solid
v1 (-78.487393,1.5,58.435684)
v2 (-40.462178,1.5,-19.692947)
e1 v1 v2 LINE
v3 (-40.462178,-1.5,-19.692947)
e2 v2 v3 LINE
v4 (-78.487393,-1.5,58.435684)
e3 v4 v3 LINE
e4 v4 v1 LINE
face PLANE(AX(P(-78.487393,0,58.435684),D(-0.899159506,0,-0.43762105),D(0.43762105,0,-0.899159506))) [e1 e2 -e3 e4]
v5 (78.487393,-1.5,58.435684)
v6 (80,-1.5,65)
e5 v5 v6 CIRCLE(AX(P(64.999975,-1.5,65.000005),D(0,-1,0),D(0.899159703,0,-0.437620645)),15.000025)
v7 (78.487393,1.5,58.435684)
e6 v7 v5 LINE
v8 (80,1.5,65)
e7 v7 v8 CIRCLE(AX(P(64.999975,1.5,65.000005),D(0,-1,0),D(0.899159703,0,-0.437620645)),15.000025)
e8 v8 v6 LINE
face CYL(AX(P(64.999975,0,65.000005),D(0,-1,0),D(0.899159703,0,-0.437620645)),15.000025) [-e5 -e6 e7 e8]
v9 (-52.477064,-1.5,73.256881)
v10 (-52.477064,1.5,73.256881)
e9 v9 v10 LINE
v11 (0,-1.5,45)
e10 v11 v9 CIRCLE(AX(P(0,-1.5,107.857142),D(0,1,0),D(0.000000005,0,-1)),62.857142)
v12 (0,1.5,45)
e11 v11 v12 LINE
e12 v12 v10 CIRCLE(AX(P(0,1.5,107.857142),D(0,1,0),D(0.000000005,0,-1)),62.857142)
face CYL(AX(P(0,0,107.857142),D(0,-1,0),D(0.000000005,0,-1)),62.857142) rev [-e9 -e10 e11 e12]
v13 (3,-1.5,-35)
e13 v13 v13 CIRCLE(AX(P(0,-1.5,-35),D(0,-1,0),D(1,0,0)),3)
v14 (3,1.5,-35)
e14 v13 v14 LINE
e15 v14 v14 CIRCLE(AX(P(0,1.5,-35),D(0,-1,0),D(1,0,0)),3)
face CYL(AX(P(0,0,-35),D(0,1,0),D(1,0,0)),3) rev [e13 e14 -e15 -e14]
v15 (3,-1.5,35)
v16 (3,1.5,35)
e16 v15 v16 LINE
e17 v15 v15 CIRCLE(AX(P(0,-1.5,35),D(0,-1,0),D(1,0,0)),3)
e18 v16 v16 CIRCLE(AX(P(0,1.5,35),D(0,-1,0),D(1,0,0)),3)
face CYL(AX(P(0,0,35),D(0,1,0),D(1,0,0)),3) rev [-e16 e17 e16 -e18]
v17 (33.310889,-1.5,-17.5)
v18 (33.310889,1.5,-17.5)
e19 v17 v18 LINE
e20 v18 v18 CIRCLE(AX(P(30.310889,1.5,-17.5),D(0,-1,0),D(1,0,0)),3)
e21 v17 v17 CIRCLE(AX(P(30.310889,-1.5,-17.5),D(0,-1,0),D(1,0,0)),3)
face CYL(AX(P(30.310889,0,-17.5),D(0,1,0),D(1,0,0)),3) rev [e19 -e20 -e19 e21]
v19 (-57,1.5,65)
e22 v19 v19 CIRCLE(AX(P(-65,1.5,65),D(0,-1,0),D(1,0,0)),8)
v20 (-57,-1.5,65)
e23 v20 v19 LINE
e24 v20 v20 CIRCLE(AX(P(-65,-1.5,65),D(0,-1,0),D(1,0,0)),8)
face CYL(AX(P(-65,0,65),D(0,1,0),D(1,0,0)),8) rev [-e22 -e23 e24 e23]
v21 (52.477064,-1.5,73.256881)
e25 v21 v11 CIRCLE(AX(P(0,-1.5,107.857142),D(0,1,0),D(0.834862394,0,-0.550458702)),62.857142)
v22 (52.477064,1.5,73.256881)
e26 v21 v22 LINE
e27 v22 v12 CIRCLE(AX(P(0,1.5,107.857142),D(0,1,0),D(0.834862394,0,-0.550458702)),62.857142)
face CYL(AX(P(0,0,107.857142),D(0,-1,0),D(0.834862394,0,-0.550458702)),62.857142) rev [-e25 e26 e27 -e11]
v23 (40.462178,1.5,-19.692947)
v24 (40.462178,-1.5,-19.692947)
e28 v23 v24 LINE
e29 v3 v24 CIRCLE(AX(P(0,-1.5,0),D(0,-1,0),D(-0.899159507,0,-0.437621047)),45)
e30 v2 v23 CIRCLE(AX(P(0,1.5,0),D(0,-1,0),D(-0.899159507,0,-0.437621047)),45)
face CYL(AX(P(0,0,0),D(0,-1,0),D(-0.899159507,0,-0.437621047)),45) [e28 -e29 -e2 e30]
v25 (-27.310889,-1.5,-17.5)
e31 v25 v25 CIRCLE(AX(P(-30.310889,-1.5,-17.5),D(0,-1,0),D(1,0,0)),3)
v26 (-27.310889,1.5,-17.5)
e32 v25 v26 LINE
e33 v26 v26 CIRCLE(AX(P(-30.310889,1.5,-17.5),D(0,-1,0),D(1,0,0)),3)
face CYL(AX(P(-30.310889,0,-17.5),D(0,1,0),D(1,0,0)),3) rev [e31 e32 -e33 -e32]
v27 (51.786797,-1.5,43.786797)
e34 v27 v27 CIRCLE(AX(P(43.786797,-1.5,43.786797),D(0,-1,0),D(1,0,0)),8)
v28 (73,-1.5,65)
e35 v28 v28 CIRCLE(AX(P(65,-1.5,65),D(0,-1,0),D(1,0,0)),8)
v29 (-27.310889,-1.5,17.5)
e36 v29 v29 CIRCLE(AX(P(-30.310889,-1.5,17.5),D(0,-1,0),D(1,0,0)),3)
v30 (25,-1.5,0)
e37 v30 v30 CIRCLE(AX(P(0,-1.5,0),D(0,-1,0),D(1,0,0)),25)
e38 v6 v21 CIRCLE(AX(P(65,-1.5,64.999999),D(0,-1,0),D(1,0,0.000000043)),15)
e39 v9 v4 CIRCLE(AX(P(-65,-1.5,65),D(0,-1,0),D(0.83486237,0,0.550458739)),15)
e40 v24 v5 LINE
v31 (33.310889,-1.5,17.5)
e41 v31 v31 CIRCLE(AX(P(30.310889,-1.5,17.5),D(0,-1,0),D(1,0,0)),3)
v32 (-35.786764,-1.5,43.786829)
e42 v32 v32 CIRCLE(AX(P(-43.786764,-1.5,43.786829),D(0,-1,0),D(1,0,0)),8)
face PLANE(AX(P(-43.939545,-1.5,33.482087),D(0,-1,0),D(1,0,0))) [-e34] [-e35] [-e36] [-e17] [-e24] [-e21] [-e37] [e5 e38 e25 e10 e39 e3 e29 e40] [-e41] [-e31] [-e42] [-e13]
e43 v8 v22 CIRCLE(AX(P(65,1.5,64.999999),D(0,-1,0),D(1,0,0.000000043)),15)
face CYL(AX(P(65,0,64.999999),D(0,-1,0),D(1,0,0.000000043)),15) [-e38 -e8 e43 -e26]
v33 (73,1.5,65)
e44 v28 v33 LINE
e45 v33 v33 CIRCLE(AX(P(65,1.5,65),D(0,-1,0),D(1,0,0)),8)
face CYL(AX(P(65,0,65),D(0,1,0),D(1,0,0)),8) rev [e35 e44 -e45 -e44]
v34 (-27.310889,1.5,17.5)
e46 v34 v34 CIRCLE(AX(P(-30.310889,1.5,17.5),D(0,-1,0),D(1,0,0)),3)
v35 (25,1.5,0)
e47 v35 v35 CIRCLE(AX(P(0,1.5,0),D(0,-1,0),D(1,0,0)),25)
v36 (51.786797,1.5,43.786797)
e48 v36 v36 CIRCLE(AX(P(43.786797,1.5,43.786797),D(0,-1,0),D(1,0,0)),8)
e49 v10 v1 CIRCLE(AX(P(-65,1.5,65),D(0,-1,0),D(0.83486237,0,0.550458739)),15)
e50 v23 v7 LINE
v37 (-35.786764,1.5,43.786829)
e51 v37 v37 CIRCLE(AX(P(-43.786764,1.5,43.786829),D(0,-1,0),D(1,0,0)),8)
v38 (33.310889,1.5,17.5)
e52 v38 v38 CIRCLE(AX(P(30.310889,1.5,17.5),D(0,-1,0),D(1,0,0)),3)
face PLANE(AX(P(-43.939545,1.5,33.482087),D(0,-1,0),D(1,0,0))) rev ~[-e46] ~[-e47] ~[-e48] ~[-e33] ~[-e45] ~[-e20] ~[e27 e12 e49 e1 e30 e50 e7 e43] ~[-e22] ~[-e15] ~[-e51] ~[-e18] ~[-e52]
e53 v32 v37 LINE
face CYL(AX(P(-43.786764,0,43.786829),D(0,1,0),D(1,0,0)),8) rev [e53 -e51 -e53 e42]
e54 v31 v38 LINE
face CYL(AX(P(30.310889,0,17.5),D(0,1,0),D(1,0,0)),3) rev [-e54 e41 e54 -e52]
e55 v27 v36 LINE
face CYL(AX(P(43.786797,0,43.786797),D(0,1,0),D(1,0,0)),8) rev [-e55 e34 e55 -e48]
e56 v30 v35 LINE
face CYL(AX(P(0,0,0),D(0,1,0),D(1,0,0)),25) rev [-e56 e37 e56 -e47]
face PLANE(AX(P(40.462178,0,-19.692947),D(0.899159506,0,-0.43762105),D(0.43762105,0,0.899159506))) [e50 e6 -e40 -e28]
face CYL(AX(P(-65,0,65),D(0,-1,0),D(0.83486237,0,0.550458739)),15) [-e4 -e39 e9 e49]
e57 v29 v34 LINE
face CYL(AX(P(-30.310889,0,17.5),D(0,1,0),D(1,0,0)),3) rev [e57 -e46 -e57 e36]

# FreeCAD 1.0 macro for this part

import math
import FreeCAD as App
import Part
import Sketcher
Q = App.Units.Quantity

doc = App.newDocument("Part")
params = doc.addObject("Spreadsheet::Sheet", "Params")
for row, (alias, value) in enumerate([
    ("sketch1_diameter", "6 mm"),
    ("sketch1_diameter2", "6 mm"),
    ("sketch1_diameter3", "6 mm"),
    ("sketch1_diameter4", "50 mm"),
    ("sketch1_diameter5", "16 mm"),
    ("pad1_length", "3 mm"),
], start=1):
    params.set(f"A{row}", alias)
    params.set(f"B{row}", "=" + value)
    params.setAlias(f"B{row}", alias)

body = doc.addObject("PartDesign::Body", "Body")

# Sketch on XZ plane
sketch1 = doc.addObject("Sketcher::SketchObject", "Sketch")
body.addObject(sketch1)
sketch1.AttachmentSupport = (doc.XZ_Plane, [""])
sketch1.MapMode = "FlatFace"
sketch1.addGeometry(Part.LineSegment(App.Vector(-78.487393, 58.435684, 0), App.Vector(-40.462178, -19.692947, 0)), False)
sketch1.addGeometry(Part.ArcOfCircle(Part.Circle(App.Vector(0, 0, 0), App.Vector(0, 0, 1), 45), math.radians(-154.047807), math.radians(-25.952193)), False)
sketch1.addGeometry(Part.LineSegment(App.Vector(40.462178, -19.692947, 0), App.Vector(78.487393, 58.435684, 0)), False)
sketch1.addGeometry(Part.ArcOfCircle(Part.Circle(App.Vector(64.999975, 65.000005, 0), App.Vector(0, 0, 1), 15.000025), math.radians(-25.952167), math.radians(-0.000018)), False)
sketch1.addGeometry(Part.ArcOfCircle(Part.Circle(App.Vector(65, 64.999999, 0), App.Vector(0, 0, 1), 15), math.radians(0.000002), math.radians(146.601508)), False)
sketch1.addGeometry(Part.ArcOfCircle(Part.Circle(App.Vector(0, 107.857142, 0), App.Vector(0, 0, 1), 62.857142), math.radians(-90), math.radians(-33.398488)), False)
sketch1.addGeometry(Part.ArcOfCircle(Part.Circle(App.Vector(0, 107.857142, 0), App.Vector(0, 0, 1), 62.857142), math.radians(-146.601512), math.radians(-90)), False)
sketch1.addGeometry(Part.ArcOfCircle(Part.Circle(App.Vector(-65, 65, 0), App.Vector(0, 0, 1), 15), math.radians(33.39849), math.radians(205.952192)), False)
sketch1.addGeometry(Part.Circle(App.Vector(-30.310889, -17.5, 0), App.Vector(0, 0, 1), 3), False)
sketch1.addGeometry(Part.Circle(App.Vector(0, -35, 0), App.Vector(0, 0, 1), 3), False)
sketch1.addGeometry(Part.Circle(App.Vector(30.310889, -17.5, 0), App.Vector(0, 0, 1), 3), False)
sketch1.addGeometry(Part.Circle(App.Vector(0, 0, 0), App.Vector(0, 0, 1), 25), False)
sketch1.addGeometry(Part.Circle(App.Vector(-43.786764, 43.786829, 0), App.Vector(0, 0, 1), 8), False)
sketch1.addGeometry(Part.Circle(App.Vector(-30.310889, 17.5, 0), App.Vector(0, 0, 1), 3), False)
sketch1.addGeometry(Part.Circle(App.Vector(-65, 65, 0), App.Vector(0, 0, 1), 8), False)
sketch1.addGeometry(Part.Circle(App.Vector(30.310889, 17.5, 0), App.Vector(0, 0, 1), 3), False)
sketch1.addGeometry(Part.Circle(App.Vector(0, 35, 0), App.Vector(0, 0, 1), 3), False)
sketch1.addGeometry(Part.Circle(App.Vector(43.786797, 43.786797, 0), App.Vector(0, 0, 1), 8), False)
sketch1.addGeometry(Part.Circle(App.Vector(65, 65, 0), App.Vector(0, 0, 1), 8), False)
sketch1.addConstraint(Sketcher.Constraint("Coincident", 0, 2, 1, 1))
sketch1.addConstraint(Sketcher.Constraint("Coincident", 1, 2, 2, 1))
sketch1.addConstraint(Sketcher.Constraint("Coincident", 2, 2, 3, 1))
sketch1.addConstraint(Sketcher.Constraint("Coincident", 3, 2, 4, 1))
sketch1.addConstraint(Sketcher.Constraint("Coincident", 4, 2, 5, 2))
sketch1.addConstraint(Sketcher.Constraint("Coincident", 5, 1, 6, 2))
sketch1.addConstraint(Sketcher.Constraint("Coincident", 6, 1, 7, 1))
sketch1.addConstraint(Sketcher.Constraint("Coincident", 7, 2, 0, 1))
sketch1.addConstraint(Sketcher.Constraint("Coincident", 1, 3, -1, 1))
sketch1.addConstraint(Sketcher.Constraint("Coincident", 11, 3, -1, 1))
sketch1.addConstraint(Sketcher.Constraint("Coincident", 6, 3, 5, 3))
sketch1.addConstraint(Sketcher.Constraint("Coincident", 14, 3, 7, 3))
sketch1.addConstraint(Sketcher.Constraint("Coincident", 18, 3, 4, 3))
sketch1.addConstraint(Sketcher.Constraint("PointOnObject", 5, 3, -2))
sketch1.addConstraint(Sketcher.Constraint("PointOnObject", 9, 3, -2))
sketch1.addConstraint(Sketcher.Constraint("PointOnObject", 16, 3, -2))
sketch1.addConstraint(Sketcher.Constraint("PointOnObject", 5, 1, -2))
sketch1.addConstraint(Sketcher.Constraint("Diameter", 8, Q("6 mm")))
sketch1.addConstraint(Sketcher.Constraint("Diameter", 9, Q("6 mm")))
sketch1.addConstraint(Sketcher.Constraint("Diameter", 10, Q("6 mm")))
sketch1.addConstraint(Sketcher.Constraint("Diameter", 11, Q("50 mm")))
sketch1.addConstraint(Sketcher.Constraint("Diameter", 12, Q("16 mm")))
sketch1.addConstraint(Sketcher.Constraint("Diameter", 13, Q("6 mm")))
sketch1.addConstraint(Sketcher.Constraint("Diameter", 14, Q("16 mm")))
sketch1.addConstraint(Sketcher.Constraint("Diameter", 15, Q("6 mm")))
sketch1.addConstraint(Sketcher.Constraint("Diameter", 16, Q("6 mm")))
sketch1.addConstraint(Sketcher.Constraint("Diameter", 17, Q("16 mm")))
sketch1.addConstraint(Sketcher.Constraint("Diameter", 18, Q("16 mm")))
sketch1.addConstraint(Sketcher.Constraint("Radius", 1, Q("45 mm")))
sketch1.addConstraint(Sketcher.Constraint("Radius", 4, Q("15 mm")))
sketch1.addConstraint(Sketcher.Constraint("Radius", 7, Q("15 mm")))
sketch1.addConstraint(Sketcher.Constraint("DistanceX", -1, 1, 4, 3, Q("65 mm")))
sketch1.addConstraint(Sketcher.Constraint("DistanceY", -1, 1, 4, 3, Q("64.999999 mm")))
sketch1.addConstraint(Sketcher.Constraint("DistanceX", 7, 3, -1, 1, Q("65 mm")))
sketch1.addConstraint(Sketcher.Constraint("DistanceY", 9, 3, -1, 1, Q("35 mm")))
sketch1.addConstraint(Sketcher.Constraint("DistanceY", -1, 1, 16, 3, Q("35 mm")))
sketch1.addConstraint(Sketcher.Constraint("DistanceY", -1, 1, 3, 2, Q("65 mm")))
sketch1.addConstraint(Sketcher.Constraint("DistanceY", -1, 1, 5, 1, Q("45 mm")))
sketch1.addConstraint(Sketcher.Constraint("DistanceY", 8, 3, 13, 3, Q("35 mm")))
sketch1.addConstraint(Sketcher.Constraint("DistanceY", 10, 3, 15, 3, Q("35 mm")))
sketch1.addConstraint(Sketcher.Constraint("DistanceY", 8, 3, -1, 1, Q("17.5 mm")))
sketch1.addConstraint(Sketcher.Constraint("DistanceY", 10, 3, -1, 1, Q("17.5 mm")))
sketch1.addConstraint(Sketcher.Constraint("Radius", 3, Q("15.000025 mm")))
sketch1.addConstraint(Sketcher.Constraint("DistanceX", 6, 1, 12, 3, Q("8.6903 mm")))
sketch1.addConstraint(Sketcher.Constraint("DistanceX", 8, 3, -1, 1, Q("30.310889 mm")))
sketch1.addConstraint(Sketcher.Constraint("DistanceX", -1, 1, 10, 3, Q("30.310889 mm")))
sketch1.addConstraint(Sketcher.Constraint("DistanceY", -1, 1, 12, 3, Q("43.786829 mm")))
sketch1.addConstraint(Sketcher.Constraint("DistanceX", 13, 3, -1, 1, Q("30.310889 mm")))
sketch1.addConstraint(Sketcher.Constraint("DistanceX", -1, 1, 15, 3, Q("30.310889 mm")))
sketch1.addConstraint(Sketcher.Constraint("DistanceX", 0, 2, -1, 1, Q("40.462178 mm")))
sketch1.addConstraint(Sketcher.Constraint("DistanceX", -1, 1, 1, 2, Q("40.462178 mm")))
sketch1.addConstraint(Sketcher.Constraint("DistanceY", -1, 1, 4, 2, Q("73.256881 mm")))
sketch1.addConstraint(Sketcher.Constraint("DistanceY", -1, 1, 6, 1, Q("73.256881 mm")))
sketch1.addConstraint(Sketcher.Constraint("DistanceX", 3, 3, 2, 2, Q("13.487418 mm")))
sketch1.addConstraint(Sketcher.Constraint("DistanceX", 7, 2, 6, 1, Q("26.010329 mm")))
sketch1.addConstraint(Sketcher.Constraint("Distance", 2, Q("86.890736 mm")))
sketch1.addConstraint(Sketcher.Constraint("DistanceX", -1, 1, 17, 3, Q("43.786797 mm")))
sketch1.addConstraint(Sketcher.Constraint("DistanceY", -1, 1, 17, 3, Q("43.786797 mm")))
sketch1.setExpression("Constraints[17]", "Params.sketch1_diameter")
sketch1.setExpression("Constraints[18]", "Params.sketch1_diameter2")
sketch1.setExpression("Constraints[19]", "Params.sketch1_diameter3")
sketch1.setExpression("Constraints[20]", "Params.sketch1_diameter4")
sketch1.setExpression("Constraints[21]", "Params.sketch1_diameter5")
pad1 = doc.addObject("PartDesign::Pad", "Pad")
body.addObject(pad1)
pad1.Profile = sketch1
pad1.setExpression("Length", "Params.pad1_length")
pad1.Midplane = True

doc.recompute()
